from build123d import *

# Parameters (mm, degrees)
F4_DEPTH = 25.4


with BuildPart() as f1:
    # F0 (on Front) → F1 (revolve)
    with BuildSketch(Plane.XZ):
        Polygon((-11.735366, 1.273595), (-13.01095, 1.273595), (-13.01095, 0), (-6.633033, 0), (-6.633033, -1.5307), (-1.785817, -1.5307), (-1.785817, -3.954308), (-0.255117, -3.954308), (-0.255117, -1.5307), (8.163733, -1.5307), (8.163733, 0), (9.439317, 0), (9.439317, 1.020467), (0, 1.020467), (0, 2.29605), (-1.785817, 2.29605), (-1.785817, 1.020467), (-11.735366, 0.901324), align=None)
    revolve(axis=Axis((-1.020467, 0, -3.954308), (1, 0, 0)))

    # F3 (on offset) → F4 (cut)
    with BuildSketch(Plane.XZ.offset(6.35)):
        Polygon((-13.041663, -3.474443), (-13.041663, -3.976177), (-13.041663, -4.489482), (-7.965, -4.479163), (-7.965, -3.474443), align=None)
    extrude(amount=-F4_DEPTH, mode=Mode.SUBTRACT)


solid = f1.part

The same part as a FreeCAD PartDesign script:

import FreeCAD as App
import Part
import Sketcher
from FreeCAD import Vector
Q = App.Units.Quantity


def add_polygon(sketch, points):
    """Adds a closed chain of lines whose ends are joined by coincident constraints."""
    first, n = sketch.GeometryCount, len(points)
    for a, b in zip(points, points[1:] + points[:1]):
        sketch.addGeometry(Part.LineSegment(App.Vector(*a, 0), App.Vector(*b, 0)), False)
    for i in range(n):
        sketch.addConstraint(Sketcher.Constraint("Coincident", first + i, 2, first + (i + 1) % n, 1))

doc = App.newDocument("Part")
params = doc.addObject("Spreadsheet::Sheet", "Params")
for row, (alias, value) in enumerate([
    ("revolution_angle", "360 deg"),
    ("pocket1_length", "1 in"),
], start=1):
    params.set(f"A{row}", alias)
    params.set(f"B{row}", "=" + value)
    params.setAlias(f"B{row}", alias)

body = doc.addObject("PartDesign::Body", "Body")

sketch1 = doc.addObject("Sketcher::SketchObject", "Sketch")
body.addObject(sketch1)
sketch1.AttachmentSupport = (doc.XZ_Plane, [""])
sketch1.MapMode = "FlatFace"
add_polygon(sketch1, [(-11.735366, 1.273595), (-13.01095, 1.273595), (-13.01095, 0), (-6.633033, 0), (-6.633033, -1.5307), (-1.785817, -1.5307), (-1.785817, -3.954308), (-0.255117, -3.954308), (-0.255117, -1.5307), (8.163733, -1.5307), (8.163733, 0), (9.439317, 0), (9.439317, 1.020467), (0, 1.020467), (0, 2.29605), (-1.785817, 2.29605), (-1.785817, 1.020467), (-11.735366, 0.901324)])
sketch1.addGeometry(Part.LineSegment(Vector(-13.01095, -3.954308, 0), Vector(9.439317, -3.954308, 0)), True)
sketch1.addConstraint([
    Sketcher.Constraint("Horizontal", 0),
    Sketcher.Constraint("Vertical", 1),
    Sketcher.Constraint("Horizontal", 2),
    Sketcher.Constraint("Vertical", 3),
    Sketcher.Constraint("Horizontal", 4),
    Sketcher.Constraint("Vertical", 5),
    Sketcher.Constraint("Horizontal", 6),
    Sketcher.Constraint("Vertical", 7),
    Sketcher.Constraint("Horizontal", 8),
    Sketcher.Constraint("Vertical", 9),
    Sketcher.Constraint("Horizontal", 10),
    Sketcher.Constraint("Vertical", 11),
    Sketcher.Constraint("Horizontal", 12),
    Sketcher.Constraint("Vertical", 13),
    Sketcher.Constraint("Horizontal", 14),
    Sketcher.Constraint("Vertical", 15),
    Sketcher.Constraint("Vertical", 17),
    Sketcher.Constraint("Horizontal", 18),
    Sketcher.Constraint("PointOnObject", 1, 2, -1),
    Sketcher.Constraint("PointOnObject", 9, 2, -1),
    Sketcher.Constraint("PointOnObject", 12, 2, -2),
    Sketcher.Constraint("Horizontal", 4, 2, 7, 2),
    Sketcher.Constraint("Horizontal", 12, 2, 15, 2),
    Sketcher.Constraint("Horizontal", 6, 2, 18, 1),
    Sketcher.Constraint("Vertical", 5, 2, 14, 2),
    Sketcher.Constraint("Vertical", 1, 2, 18, 1),
    Sketcher.Constraint("Vertical", 11, 2, 18, 2),
    Sketcher.Constraint("Equal", 0, 10),
    Sketcher.Constraint("Equal", 6, 3),
    Sketcher.Constraint("Equal", 10, 13),
    Sketcher.Constraint("DistanceX", 6, 1, 6, 2, Q("1.5307 mm")),
    Sketcher.Constraint("DistanceX", 8, 1, 8, 2, Q("8.41885 mm")),
    Sketcher.Constraint("DistanceY", 5, 2, 5, 1, Q("2.423608 mm")),
    Sketcher.Constraint("DistanceY", 17, 1, 17, 2, Q("0.372271 mm")),
    Sketcher.Constraint("DistanceX", 0, 2, 0, 1, Q("1.275584 mm")),
    Sketcher.Constraint("DistanceX", 2, 1, 2, 2, Q("6.377917 mm")),
    Sketcher.Constraint("DistanceX", 4, 1, 4, 2, Q("4.847216 mm")),
    Sketcher.Constraint("DistanceX", 12, 2, 12, 1, Q("9.439317 mm")),
    Sketcher.Constraint("DistanceY", 1, 2, 1, 1, Q("1.273595 mm")),
    Sketcher.Constraint("DistanceY", 11, 1, 11, 2, Q("1.020467 mm")),
])
revolution = doc.addObject("PartDesign::Revolution", "Revolution")
body.addObject(revolution)
revolution.Profile = sketch1
revolution.ReferenceAxis = (sketch1, ["Axis0"])
revolution.setExpression("Angle", "Params.revolution_angle")

sketch2 = doc.addObject("Sketcher::SketchObject", "Sketch001")
body.addObject(sketch2)
sketch2.AttachmentSupport = (doc.XZ_Plane, [""])
sketch2.MapMode = "FlatFace"
sketch2.AttachmentOffset = App.Placement(Vector(0, 0, 0.25 * 25.4), App.Rotation())
add_polygon(sketch2, [(-13.041663, -3.474443), (-13.041663, -4.489482), (-7.965, -4.479163), (-7.965, -3.474443)])
sketch2.addConstraint([
    Sketcher.Constraint("Vertical", 0),
    Sketcher.Constraint("Vertical", 2),
    Sketcher.Constraint("Horizontal", 3),
    Sketcher.Constraint("DistanceY", 0, 2, 0, 1, Q("1.015039 mm")),
    Sketcher.Constraint("DistanceY", 2, 1, 2, 2, Q("1.00472 mm")),
    Sketcher.Constraint("DistanceX", 1, 2, -1, 1, Q("7.965 mm")),
    Sketcher.Constraint("DistanceX", 3, 2, 3, 1, Q("5.076663 mm")),
    Sketcher.Constraint("DistanceY", 0, 2, -1, 1, Q("4.489482 mm")),
])
pocket1 = doc.addObject("PartDesign::Pocket", "Pocket")
body.addObject(pocket1)
pocket1.Profile = sketch2
pocket1.setExpression("Length", "Params.pocket1_length")

doc.recompute()
